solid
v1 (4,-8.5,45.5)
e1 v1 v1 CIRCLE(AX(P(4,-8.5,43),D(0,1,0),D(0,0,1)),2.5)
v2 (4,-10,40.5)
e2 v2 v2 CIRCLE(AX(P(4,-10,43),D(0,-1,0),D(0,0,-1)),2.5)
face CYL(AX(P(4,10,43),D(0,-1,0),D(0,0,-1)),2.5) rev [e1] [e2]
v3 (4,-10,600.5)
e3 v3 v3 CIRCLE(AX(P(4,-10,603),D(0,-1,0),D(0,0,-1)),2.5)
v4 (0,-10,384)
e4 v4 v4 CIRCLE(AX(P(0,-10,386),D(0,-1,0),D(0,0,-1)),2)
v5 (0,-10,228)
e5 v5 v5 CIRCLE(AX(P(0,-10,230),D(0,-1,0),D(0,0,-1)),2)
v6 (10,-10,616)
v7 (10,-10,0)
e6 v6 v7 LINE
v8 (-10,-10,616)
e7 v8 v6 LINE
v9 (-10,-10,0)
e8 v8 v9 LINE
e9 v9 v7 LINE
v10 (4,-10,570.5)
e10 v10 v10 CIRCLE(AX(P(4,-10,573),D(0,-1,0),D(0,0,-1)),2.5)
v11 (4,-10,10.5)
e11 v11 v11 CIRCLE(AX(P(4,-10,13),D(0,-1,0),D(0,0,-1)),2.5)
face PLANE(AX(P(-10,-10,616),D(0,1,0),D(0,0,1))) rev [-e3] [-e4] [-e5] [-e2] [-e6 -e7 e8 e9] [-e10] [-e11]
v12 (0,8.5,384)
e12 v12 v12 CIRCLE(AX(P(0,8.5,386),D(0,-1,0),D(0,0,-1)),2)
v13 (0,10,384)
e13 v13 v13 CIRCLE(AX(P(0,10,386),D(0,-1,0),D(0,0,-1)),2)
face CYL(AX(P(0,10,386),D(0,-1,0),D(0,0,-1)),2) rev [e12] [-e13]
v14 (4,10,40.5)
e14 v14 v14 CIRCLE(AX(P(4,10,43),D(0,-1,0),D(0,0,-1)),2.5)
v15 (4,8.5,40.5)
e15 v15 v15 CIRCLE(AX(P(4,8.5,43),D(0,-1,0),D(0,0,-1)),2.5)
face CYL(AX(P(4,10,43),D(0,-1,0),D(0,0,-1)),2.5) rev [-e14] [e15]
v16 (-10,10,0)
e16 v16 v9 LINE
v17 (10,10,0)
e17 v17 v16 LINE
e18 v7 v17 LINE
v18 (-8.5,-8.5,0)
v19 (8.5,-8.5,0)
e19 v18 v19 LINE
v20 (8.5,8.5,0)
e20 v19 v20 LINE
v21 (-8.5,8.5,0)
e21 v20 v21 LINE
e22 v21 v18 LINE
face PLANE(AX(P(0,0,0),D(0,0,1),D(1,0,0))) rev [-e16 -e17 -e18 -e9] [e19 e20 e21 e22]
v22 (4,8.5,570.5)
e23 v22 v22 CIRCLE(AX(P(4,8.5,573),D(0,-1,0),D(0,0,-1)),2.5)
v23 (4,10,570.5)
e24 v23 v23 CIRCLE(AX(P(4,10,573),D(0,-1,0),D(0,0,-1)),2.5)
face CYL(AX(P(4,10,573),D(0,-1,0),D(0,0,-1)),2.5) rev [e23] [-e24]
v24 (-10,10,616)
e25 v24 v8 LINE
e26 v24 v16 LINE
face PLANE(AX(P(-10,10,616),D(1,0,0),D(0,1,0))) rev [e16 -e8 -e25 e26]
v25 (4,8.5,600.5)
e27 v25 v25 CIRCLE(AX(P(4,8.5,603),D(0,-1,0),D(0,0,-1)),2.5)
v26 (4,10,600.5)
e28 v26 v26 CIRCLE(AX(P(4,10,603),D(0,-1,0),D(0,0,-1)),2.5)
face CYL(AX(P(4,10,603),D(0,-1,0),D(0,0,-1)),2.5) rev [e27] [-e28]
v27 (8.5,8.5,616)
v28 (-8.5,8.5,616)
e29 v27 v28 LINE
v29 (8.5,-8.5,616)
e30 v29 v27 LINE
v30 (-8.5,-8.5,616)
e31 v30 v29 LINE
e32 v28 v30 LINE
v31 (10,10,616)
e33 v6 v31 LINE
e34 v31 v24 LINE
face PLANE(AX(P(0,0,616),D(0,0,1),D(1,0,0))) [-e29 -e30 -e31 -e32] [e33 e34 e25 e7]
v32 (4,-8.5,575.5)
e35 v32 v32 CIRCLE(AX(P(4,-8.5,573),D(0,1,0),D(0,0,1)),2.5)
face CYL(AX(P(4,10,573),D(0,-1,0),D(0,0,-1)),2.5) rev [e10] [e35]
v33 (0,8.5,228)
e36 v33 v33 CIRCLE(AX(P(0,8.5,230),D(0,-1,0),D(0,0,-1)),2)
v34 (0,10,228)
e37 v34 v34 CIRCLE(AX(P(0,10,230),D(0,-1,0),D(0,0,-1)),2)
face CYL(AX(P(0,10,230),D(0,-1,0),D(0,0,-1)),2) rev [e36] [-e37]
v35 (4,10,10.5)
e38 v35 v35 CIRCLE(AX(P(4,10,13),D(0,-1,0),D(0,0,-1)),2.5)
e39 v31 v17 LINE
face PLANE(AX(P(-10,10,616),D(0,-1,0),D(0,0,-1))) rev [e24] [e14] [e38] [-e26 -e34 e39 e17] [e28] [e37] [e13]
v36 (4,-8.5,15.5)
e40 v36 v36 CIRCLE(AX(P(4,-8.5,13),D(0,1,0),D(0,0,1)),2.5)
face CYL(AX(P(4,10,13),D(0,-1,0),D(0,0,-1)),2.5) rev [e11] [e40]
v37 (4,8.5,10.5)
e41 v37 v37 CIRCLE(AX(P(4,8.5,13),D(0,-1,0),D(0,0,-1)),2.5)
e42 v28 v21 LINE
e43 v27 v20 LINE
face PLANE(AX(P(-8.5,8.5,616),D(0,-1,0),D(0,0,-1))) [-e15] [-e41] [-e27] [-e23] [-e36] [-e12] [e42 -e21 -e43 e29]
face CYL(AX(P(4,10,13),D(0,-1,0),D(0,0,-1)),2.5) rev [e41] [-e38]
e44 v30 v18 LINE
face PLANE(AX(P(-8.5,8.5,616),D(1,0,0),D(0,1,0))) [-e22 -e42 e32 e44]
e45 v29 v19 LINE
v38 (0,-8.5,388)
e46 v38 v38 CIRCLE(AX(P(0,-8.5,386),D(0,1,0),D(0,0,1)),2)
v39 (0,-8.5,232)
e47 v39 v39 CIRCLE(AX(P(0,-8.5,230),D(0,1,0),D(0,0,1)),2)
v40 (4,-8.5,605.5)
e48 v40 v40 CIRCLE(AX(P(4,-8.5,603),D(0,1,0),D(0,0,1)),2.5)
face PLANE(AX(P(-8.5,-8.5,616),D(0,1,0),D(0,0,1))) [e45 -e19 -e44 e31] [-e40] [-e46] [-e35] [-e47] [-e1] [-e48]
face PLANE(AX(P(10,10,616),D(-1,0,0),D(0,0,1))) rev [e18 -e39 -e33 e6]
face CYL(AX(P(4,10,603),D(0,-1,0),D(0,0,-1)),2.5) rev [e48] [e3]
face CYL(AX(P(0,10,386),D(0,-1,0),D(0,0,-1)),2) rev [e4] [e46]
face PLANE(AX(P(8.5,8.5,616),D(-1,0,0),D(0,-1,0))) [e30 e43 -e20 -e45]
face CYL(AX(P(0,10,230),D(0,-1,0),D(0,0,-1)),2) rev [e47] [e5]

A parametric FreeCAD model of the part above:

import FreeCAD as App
import Part
import Sketcher
from FreeCAD import Vector

doc = App.newDocument("Part")
params = doc.addObject("Spreadsheet::Sheet", "Params")
for row, (alias, value) in enumerate([
    ("sketch1_width", "20 mm"),
    ("sketch1_width2", "17 mm"),
    ("pad1_length", "616 mm"),
    ("sketch2_diameter", "5 mm"),
    ("pocket1_length", "20 mm"),
    ("sketch3_diameter", "4 mm"),
    ("pocket2_length", "20 mm"),
], start=1):
    params.set(f"A{row}", alias)
    params.set(f"B{row}", "=" + value)
    params.setAlias(f"B{row}", alias)

body = doc.addObject("PartDesign::Body", "Body")

# Sketch on XY plane
sketch1 = body.newObject("Sketcher::SketchObject", "Sketch")
sketch1.AttachmentSupport = (doc.getObject("XY_Plane"), [""])
sketch1.MapMode = "FlatFace"
sketch1.addGeometry([
    Part.LineSegment(Vector(-10, 10, 0), Vector(-10, -10, 0)),  # 0
    Part.LineSegment(Vector(-10, -10, 0), Vector(10, -10, 0)),  # 1
    Part.LineSegment(Vector(10, -10, 0), Vector(10, 10, 0)),  # 2
    Part.LineSegment(Vector(10, 10, 0), Vector(-10, 10, 0)),  # 3
    Part.LineSegment(Vector(8, -8, 0), Vector(-8, -8, 0)),  # 4
    Part.LineSegment(Vector(-8, -8, 0), Vector(-8, 8, 0)),  # 5
    Part.LineSegment(Vector(-8, 8, 0), Vector(8, 8, 0)),  # 6
    Part.LineSegment(Vector(8, 8, 0), Vector(8, -8, 0)),  # 7
], False)
sketch1.addConstraint([
    Sketcher.Constraint("Coincident", 0, 2, 1, 1),
    Sketcher.Constraint("Coincident", 1, 2, 2, 1),
    Sketcher.Constraint("Coincident", 2, 2, 3, 1),
    Sketcher.Constraint("Coincident", 3, 2, 0, 1),
    Sketcher.Constraint("Coincident", 4, 2, 5, 1),
    Sketcher.Constraint("Coincident", 5, 2, 6, 1),
    Sketcher.Constraint("Coincident", 6, 2, 7, 1),
    Sketcher.Constraint("Coincident", 7, 2, 4, 1),
    Sketcher.Constraint("Vertical", 0),
    Sketcher.Constraint("Horizontal", 1),
    Sketcher.Constraint("Vertical", 2),
    Sketcher.Constraint("Horizontal", 3),
    Sketcher.Constraint("Horizontal", 4),
    Sketcher.Constraint("Vertical", 5),
    Sketcher.Constraint("Horizontal", 6),
    Sketcher.Constraint("Vertical", 7),
    Sketcher.Constraint("Symmetric", 0, 2, 2, 2, -1, 1),
    Sketcher.Constraint("Symmetric", 4, 2, 6, 2, -1, 1),
    Sketcher.Constraint("Equal", 3, 0),
    Sketcher.Constraint("Equal", 6, 5),
    Sketcher.Constraint("DistanceX", 1, 1, 1, 2, 20.0),
    Sketcher.Constraint("DistanceX", 4, 2, 4, 1, 17.0),
])
sketch1.setExpression("Constraints[20]", "Params.sketch1_width")
sketch1.setExpression("Constraints[21]", "Params.sketch1_width2")
pad1 = body.newObject("PartDesign::Pad", "Pad")
pad1.Profile = sketch1
pad1.setExpression("Length", "Params.pad1_length")

# Sketch on XZ plane
sketch2 = body.newObject("Sketcher::SketchObject", "Sketch001")
sketch2.AttachmentSupport = (doc.getObject("XZ_Plane"), [""])
sketch2.MapMode = "FlatFace"
sketch2.AttachmentOffset = App.Placement(Vector(0, 0, 10), App.Rotation())
sketch2.addGeometry([
    Part.Circle(Vector(4, 13, 0), Vector(0, 0, 1), 2.5),
    Part.Circle(Vector(4, 43, 0), Vector(0, 0, 1), 2.5),
    Part.Circle(Vector(4, 603, 0), Vector(0, 0, 1), 2.5),
    Part.Circle(Vector(4, 573, 0), Vector(0, 0, 1), 2.5),
], False)
sketch2.addConstraint([
    Sketcher.Constraint("Equal", 0, 1),
    Sketcher.Constraint("Equal", 1, 2),
    Sketcher.Constraint("Equal", 2, 3),
    Sketcher.Constraint("Vertical", 0, 3, 1, 3),
    Sketcher.Constraint("Vertical", 1, 3, 2, 3),
    Sketcher.Constraint("Vertical", 2, 3, 3, 3),
    Sketcher.Constraint("Diameter", 0, 5.0),
    Sketcher.Constraint("DistanceX", -1, 1, 0, 3, 4.0),
    Sketcher.Constraint("DistanceY", -1, 1, 0, 3, 13.0),
    Sketcher.Constraint("DistanceY", -1, 1, 1, 3, 43.0),
    Sketcher.Constraint("DistanceY", -1, 1, 2, 3, 603.0),
    Sketcher.Constraint("DistanceY", -1, 1, 3, 3, 573.0),
])
sketch2.setExpression("Constraints[6]", "Params.sketch2_diameter")
pocket1 = body.newObject("PartDesign::Pocket", "Pocket")
pocket1.Profile = sketch2
pocket1.setExpression("Length", "Params.pocket1_length")

# Sketch on XZ plane
sketch3 = body.newObject("Sketcher::SketchObject", "Sketch002")
sketch3.AttachmentSupport = (doc.getObject("XZ_Plane"), [""])
sketch3.MapMode = "FlatFace"
sketch3.AttachmentOffset = App.Placement(Vector(0, 0, 10), App.Rotation())
sketch3.addGeometry([
    Part.Circle(Vector(0, 230, 0), Vector(0, 0, 1), 2),
    Part.Circle(Vector(0, 386, 0), Vector(0, 0, 1), 2),
], False)
sketch3.addConstraint([
    Sketcher.Constraint("Equal", 0, 1),
    Sketcher.Constraint("PointOnObject", 0, 3, -2),
    Sketcher.Constraint("PointOnObject", 1, 3, -2),
    Sketcher.Constraint("Diameter", 0, 4.0),
    Sketcher.Constraint("DistanceY", -1, 1, 0, 3, 230.0),
    Sketcher.Constraint("DistanceY", -1, 1, 1, 3, 386.0),
])
sketch3.setExpression("Constraints[3]", "Params.sketch3_diameter")
pocket2 = body.newObject("PartDesign::Pocket", "Pocket001")
pocket2.Profile = sketch3
pocket2.setExpression("Length", "Params.pocket2_length")

doc.recompute()
